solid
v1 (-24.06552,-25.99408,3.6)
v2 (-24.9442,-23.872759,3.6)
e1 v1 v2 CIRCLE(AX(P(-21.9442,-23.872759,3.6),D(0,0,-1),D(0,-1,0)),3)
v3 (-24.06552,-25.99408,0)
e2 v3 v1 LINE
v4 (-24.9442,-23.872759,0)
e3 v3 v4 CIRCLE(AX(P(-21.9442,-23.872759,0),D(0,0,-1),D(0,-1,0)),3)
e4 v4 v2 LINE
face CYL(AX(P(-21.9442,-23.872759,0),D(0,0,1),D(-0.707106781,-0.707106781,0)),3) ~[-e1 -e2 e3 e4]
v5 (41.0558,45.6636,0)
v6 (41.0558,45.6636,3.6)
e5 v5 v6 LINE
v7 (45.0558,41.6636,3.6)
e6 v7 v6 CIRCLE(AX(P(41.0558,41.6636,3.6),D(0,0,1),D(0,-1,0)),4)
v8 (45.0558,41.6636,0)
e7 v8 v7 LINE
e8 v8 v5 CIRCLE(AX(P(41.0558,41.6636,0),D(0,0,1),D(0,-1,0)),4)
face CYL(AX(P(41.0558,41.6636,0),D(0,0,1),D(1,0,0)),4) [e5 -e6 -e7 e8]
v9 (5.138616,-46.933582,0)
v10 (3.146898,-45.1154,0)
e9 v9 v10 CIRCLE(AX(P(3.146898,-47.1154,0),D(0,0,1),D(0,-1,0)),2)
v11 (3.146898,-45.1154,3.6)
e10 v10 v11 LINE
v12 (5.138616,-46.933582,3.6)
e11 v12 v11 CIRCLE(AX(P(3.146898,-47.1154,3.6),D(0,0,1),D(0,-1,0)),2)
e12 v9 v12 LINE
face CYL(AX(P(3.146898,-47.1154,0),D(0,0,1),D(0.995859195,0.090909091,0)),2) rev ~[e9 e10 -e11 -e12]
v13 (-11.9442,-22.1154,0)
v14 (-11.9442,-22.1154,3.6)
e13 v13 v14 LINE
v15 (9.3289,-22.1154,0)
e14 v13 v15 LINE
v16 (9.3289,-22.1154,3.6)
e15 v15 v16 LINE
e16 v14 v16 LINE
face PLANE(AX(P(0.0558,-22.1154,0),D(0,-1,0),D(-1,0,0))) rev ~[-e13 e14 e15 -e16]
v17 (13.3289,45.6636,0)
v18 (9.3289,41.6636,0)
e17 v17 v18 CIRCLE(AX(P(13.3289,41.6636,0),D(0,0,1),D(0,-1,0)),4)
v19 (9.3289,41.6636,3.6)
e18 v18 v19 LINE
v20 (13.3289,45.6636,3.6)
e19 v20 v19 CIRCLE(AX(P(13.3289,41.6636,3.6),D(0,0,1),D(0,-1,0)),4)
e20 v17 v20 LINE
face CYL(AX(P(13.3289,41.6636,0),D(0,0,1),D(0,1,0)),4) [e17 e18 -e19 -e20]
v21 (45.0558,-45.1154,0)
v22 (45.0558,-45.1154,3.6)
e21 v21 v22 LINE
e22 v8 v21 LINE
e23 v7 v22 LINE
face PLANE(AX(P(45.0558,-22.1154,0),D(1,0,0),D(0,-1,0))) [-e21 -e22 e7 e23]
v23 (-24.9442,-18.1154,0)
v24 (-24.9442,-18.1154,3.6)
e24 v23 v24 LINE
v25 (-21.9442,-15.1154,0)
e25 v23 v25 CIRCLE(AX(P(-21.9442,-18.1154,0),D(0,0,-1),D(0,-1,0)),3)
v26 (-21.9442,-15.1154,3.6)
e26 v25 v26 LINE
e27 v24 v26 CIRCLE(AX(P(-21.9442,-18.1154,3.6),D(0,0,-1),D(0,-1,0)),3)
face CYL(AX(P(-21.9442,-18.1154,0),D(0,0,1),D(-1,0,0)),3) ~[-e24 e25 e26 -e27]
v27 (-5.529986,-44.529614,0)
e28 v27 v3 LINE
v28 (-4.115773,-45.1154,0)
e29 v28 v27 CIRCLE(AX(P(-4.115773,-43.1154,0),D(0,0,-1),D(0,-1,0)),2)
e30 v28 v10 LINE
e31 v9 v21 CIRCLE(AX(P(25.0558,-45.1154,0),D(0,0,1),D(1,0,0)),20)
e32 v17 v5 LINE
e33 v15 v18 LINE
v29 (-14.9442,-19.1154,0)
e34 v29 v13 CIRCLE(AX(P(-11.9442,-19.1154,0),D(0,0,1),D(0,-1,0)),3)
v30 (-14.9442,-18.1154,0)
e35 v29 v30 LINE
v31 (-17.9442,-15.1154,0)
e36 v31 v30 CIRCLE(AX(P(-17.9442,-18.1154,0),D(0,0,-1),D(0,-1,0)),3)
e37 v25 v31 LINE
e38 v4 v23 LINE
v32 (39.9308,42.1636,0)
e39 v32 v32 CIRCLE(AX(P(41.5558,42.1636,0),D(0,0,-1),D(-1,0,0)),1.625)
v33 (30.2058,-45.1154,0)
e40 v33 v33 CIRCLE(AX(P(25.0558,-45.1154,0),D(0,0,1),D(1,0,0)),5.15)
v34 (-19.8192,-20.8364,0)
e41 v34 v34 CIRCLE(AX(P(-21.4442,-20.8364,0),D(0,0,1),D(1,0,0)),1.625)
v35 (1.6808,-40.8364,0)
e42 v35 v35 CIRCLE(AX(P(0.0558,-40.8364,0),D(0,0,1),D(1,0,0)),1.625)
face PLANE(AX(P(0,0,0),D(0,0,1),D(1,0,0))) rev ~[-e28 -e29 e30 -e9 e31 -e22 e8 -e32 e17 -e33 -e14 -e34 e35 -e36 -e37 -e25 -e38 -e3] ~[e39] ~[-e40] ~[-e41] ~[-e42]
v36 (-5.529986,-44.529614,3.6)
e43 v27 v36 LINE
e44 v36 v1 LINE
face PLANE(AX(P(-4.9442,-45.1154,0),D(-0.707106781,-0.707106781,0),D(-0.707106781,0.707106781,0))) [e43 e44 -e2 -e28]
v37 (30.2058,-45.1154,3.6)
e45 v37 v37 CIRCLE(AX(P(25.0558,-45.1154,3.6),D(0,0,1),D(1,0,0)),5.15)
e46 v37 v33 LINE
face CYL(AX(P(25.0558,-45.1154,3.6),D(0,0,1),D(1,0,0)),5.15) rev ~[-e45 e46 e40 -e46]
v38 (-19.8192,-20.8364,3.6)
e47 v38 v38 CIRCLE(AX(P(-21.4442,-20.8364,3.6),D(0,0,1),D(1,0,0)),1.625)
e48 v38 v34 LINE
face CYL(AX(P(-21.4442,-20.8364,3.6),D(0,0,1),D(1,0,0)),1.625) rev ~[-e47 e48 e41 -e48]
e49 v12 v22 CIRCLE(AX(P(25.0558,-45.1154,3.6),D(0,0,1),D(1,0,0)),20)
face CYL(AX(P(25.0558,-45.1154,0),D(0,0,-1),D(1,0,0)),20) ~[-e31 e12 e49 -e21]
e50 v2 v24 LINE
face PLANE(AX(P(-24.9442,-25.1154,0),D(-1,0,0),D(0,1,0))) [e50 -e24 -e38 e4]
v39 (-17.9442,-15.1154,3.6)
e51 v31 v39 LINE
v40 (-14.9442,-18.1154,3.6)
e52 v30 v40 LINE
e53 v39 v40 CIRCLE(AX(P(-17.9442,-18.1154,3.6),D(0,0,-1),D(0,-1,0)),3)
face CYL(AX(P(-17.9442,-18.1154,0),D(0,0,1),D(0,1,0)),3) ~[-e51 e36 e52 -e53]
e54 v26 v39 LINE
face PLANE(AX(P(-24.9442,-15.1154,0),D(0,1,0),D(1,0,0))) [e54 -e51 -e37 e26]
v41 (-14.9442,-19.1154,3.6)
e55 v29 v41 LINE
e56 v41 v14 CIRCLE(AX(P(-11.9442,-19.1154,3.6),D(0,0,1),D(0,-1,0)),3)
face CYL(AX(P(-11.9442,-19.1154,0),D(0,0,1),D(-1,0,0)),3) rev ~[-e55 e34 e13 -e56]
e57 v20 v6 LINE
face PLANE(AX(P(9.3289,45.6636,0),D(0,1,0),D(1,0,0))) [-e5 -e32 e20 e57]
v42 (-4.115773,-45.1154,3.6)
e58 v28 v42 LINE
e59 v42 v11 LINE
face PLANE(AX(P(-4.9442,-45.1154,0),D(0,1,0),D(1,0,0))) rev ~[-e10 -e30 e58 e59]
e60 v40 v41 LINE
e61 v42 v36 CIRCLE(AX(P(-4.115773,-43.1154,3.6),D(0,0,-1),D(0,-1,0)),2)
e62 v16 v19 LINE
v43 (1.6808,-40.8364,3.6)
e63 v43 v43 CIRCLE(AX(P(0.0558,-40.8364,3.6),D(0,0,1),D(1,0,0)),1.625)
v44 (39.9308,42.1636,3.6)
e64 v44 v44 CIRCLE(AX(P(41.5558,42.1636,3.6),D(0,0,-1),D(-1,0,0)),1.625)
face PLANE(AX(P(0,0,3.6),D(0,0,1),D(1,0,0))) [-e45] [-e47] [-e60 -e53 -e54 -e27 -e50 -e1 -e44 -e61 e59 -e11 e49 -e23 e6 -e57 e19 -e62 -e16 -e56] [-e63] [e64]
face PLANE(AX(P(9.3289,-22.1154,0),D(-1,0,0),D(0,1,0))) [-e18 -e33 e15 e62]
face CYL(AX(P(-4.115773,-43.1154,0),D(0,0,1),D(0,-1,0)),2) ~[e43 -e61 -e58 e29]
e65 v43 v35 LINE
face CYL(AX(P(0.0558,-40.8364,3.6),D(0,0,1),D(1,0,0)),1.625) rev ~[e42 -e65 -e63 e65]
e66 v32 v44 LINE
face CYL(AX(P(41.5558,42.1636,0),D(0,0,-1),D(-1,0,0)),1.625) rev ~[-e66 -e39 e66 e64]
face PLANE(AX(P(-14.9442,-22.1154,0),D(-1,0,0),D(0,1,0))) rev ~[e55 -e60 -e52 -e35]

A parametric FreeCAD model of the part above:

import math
import FreeCAD as App
import Part
import Sketcher
from FreeCAD import Vector


def edges_at(feature, points):
    """Names of the edges that pass closest to the given points."""
    edges = feature.Shape.Edges
    near = lambda p: min(range(len(edges)), key=lambda i: edges[i].distToShape(Part.Vertex(*p))[0])
    return sorted({f"Edge{near(p) + 1}" for p in points})


def add_polygon(sketch, points):
    """Adds a closed chain of lines whose ends are joined by coincident constraints."""
    first, n = sketch.GeometryCount, len(points)
    for a, b in zip(points, points[1:] + points[:1]):
        sketch.addGeometry(Part.LineSegment(App.Vector(*a, 0), App.Vector(*b, 0)), False)
    for i in range(n):
        sketch.addConstraint(Sketcher.Constraint("Coincident", first + i, 2, first + (i + 1) % n, 1))

doc = App.newDocument("Part")
body = doc.addObject("PartDesign::Body", "Body")

# Sketch on XY plane
sketch1 = body.newObject("Sketcher::SketchObject", "Sketch")
sketch1.AttachmentSupport = (doc.getObject("XY_Plane"), [""])
sketch1.MapMode = "FlatFace"
sketch1.addGeometry([
    Part.ArcOfCircle(Part.Circle(Vector(25.0558, -45.1154, 0), Vector(0, 0, 1), 20), math.radians(180), math.radians(360)),  # 0
    Part.LineSegment(Vector(45.0558, -45.1154, 0), Vector(45.0558, -22.1154, 0)),  # 1
    Part.LineSegment(Vector(45.0558, -22.1154, 0), Vector(-4.9442, -22.1154, 0)),  # 2
    Part.LineSegment(Vector(-4.9442, -22.1154, 0), Vector(-4.9442, -15.1154, 0)),  # 3
    Part.LineSegment(Vector(-4.9442, -15.1154, 0), Vector(-24.9442, -15.1154, 0)),  # 4
    Part.LineSegment(Vector(-24.9442, -15.1154, 0), Vector(-24.9442, -25.1154, 0)),  # 5
    Part.LineSegment(Vector(-24.9442, -25.1154, 0), Vector(-4.9442, -45.1154, 0)),  # 6
    Part.LineSegment(Vector(-4.9442, -45.1154, 0), Vector(5.0558, -45.1154, 0)),  # 7
], False)
sketch1.addConstraint([
    Sketcher.Constraint("Tangent", 0, 2, 1, 1),
    Sketcher.Constraint("Coincident", 1, 2, 2, 1),
    Sketcher.Constraint("Coincident", 2, 2, 3, 1),
    Sketcher.Constraint("Coincident", 3, 2, 4, 1),
    Sketcher.Constraint("Coincident", 4, 2, 5, 1),
    Sketcher.Constraint("Coincident", 5, 2, 6, 1),
    Sketcher.Constraint("Coincident", 6, 2, 7, 1),
    Sketcher.Constraint("Coincident", 7, 2, 0, 1),
    Sketcher.Constraint("Vertical", 1),
    Sketcher.Constraint("Horizontal", 2),
    Sketcher.Constraint("Vertical", 3),
    Sketcher.Constraint("Horizontal", 4),
    Sketcher.Constraint("Vertical", 5),
    Sketcher.Constraint("Horizontal", 7),
    Sketcher.Constraint("Horizontal", 0, 2, 6, 2),
    Sketcher.Constraint("Vertical", 3, 2, 6, 2),
    Sketcher.Constraint("Equal", 7, 5),
    Sketcher.Constraint("Radius", 0, 20.0),
    Sketcher.Constraint("DistanceX", 2, 2, 2, 1, 50.0),
    Sketcher.Constraint("DistanceX", 4, 2, 4, 1, 20.0),
    Sketcher.Constraint("DistanceY", 1, 1, 1, 2, 23.0),
    Sketcher.Constraint("DistanceY", 0, 3, 3, 2, 30.0),
    Sketcher.Constraint("DistanceX", -1, 1, 0, 3, 25.0558),
    Sketcher.Constraint("DistanceY", 0, 3, -1, 1, 45.1154),
])
pad1 = body.newObject("PartDesign::Pad", "Pad")
pad1.Profile = sketch1
pad1.Length = 3.6

# Sketch on XY plane
sketch2 = body.newObject("Sketcher::SketchObject", "Sketch001")
sketch2.AttachmentSupport = (doc.getObject("XY_Plane"), [""])
sketch2.MapMode = "FlatFace"
sketch2.AttachmentOffset = App.Placement(Vector(0, 0, 3.6), App.Rotation())
sketch2.addGeometry([
    Part.Circle(Vector(25.0558, -45.1154, 0), Vector(0, 0, 1), 5.15),
    Part.Circle(Vector(0.0558, -40.8364, 0), Vector(0, 0, 1), 1.625),
    Part.Circle(Vector(-21.4442, -20.8364, 0), Vector(0, 0, 1), 1.625),
], False)
sketch2.addConstraint([
    Sketcher.Constraint("Equal", 1, 2),
    Sketcher.Constraint("Diameter", 0, 10.3),
    Sketcher.Constraint("Diameter", 1, 3.25),
    Sketcher.Constraint("DistanceY", 1, 3, 2, 3, 20.0),
    Sketcher.Constraint("DistanceX", 2, 3, 1, 3, 21.5),
    Sketcher.Constraint("DistanceX", 1, 3, 0, 3, 25.0),
    Sketcher.Constraint("DistanceY", 0, 3, 1, 3, 4.279),
    Sketcher.Constraint("DistanceX", -1, 1, 0, 3, 25.0558),
    Sketcher.Constraint("DistanceY", 0, 3, -1, 1, 45.1154),
])
pocket1 = body.newObject("PartDesign::Pocket", "Pocket")
pocket1.Profile = sketch2
pocket1.Length = 20
doc.recompute()

fillet = body.newObject("PartDesign::Fillet", "Fillet")
fillet.Base = (pocket1, edges_at(pocket1, [
    (45.056, -22.115, 1.8),
    (-4.944, -45.115, 1.8),
    (-4.944, -22.115, 1.8),
    (5.056, -45.115, 1.8),
]))
fillet.Radius = 2
doc.recompute()

fillet2 = body.newObject("PartDesign::Fillet", "Fillet001")
fillet2.Base = (fillet, edges_at(fillet, [(-24.944, -25.115, 1.8), (-24.944, -15.115, 1.8), (-4.944, -15.115, 1.8)]))
fillet2.Radius = 3

# Sketch on XY plane
sketch3 = body.newObject("Sketcher::SketchObject", "Sketch002")
sketch3.AttachmentSupport = (doc.getObject("XY_Plane"), [""])
sketch3.MapMode = "FlatFace"
add_polygon(sketch3, [(-14.9442, -15.1154), (0.0558, -15.1154), (0.0558, -22.1154), (-14.9442, -22.1154)])  # lines 0-3
sketch3.addConstraint([
    Sketcher.Constraint("Horizontal", 0),
    Sketcher.Constraint("Vertical", 1),
    Sketcher.Constraint("Horizontal", 2),
    Sketcher.Constraint("Vertical", 3),
    Sketcher.Constraint("DistanceX", 0, 1, 0, 2, 15.0),
    Sketcher.Constraint("DistanceY", 1, 2, 1, 1, 7.0),
    Sketcher.Constraint("DistanceX", -1, 1, 0, 2, 0.0558),
    Sketcher.Constraint("DistanceY", 0, 2, -1, 1, 15.1154),
])
pocket2 = body.newObject("PartDesign::Pocket", "Pocket001")
pocket2.Profile = sketch3
pocket2.Length = 10
pocket2.Reversed = True
doc.recompute()

fillet3 = body.newObject("PartDesign::Fillet", "Fillet002")
fillet3.Base = (pocket2, edges_at(pocket2, [(-14.944, -15.115, 1.8), (-14.944, -22.115, 1.8)]))
fillet3.Radius = 3

# Sketch on XY plane
sketch4 = body.newObject("Sketcher::SketchObject", "Sketch003")
sketch4.AttachmentSupport = (doc.getObject("XY_Plane"), [""])
sketch4.MapMode = "FlatFace"
add_polygon(sketch4, [(45.0558, 45.6636), (45.0558, -28.8196), (9.3289, -28.8196), (9.3289, 45.6636)])  # lines 0-3
sketch4.addConstraint([
    Sketcher.Constraint("Vertical", 0),
    Sketcher.Constraint("Horizontal", 1),
    Sketcher.Constraint("Vertical", 2),
    Sketcher.Constraint("Horizontal", 3),
    Sketcher.Constraint("DistanceX", 1, 2, 1, 1, 35.727),
    Sketcher.Constraint("DistanceY", 0, 2, 0, 1, 74.4832),
    Sketcher.Constraint("DistanceX", -1, 1, 1, 2, 9.329),
    Sketcher.Constraint("DistanceY", 0, 2, -1, 1, 28.8196),
])
pad2 = body.newObject("PartDesign::Pad", "Pad001")
pad2.Profile = sketch4
pad2.Length = 3.6
doc.recompute()

fillet4 = body.newObject("PartDesign::Fillet", "Fillet003")
fillet4.Base = (pad2, edges_at(pad2, [(9.329, 45.664, 1.8), (45.056, 45.664, 1.8)]))
fillet4.Radius = 4

# Sketch on XY plane
sketch5 = body.newObject("Sketcher::SketchObject", "Sketch004")
sketch5.AttachmentSupport = (doc.getObject("XY_Plane"), [""])
sketch5.MapMode = "FlatFace"
sketch5.addGeometry(Part.Circle(Vector(41.5558, 42.1636, 0), Vector(0, 0, 1), 1.625), False)
sketch5.addConstraint([
    Sketcher.Constraint("Diameter", 0, 3.25),
    Sketcher.Constraint("DistanceX", -1, 1, 0, 3, 41.5558),
    Sketcher.Constraint("DistanceY", -1, 1, 0, 3, 42.1636),
])
pocket3 = body.newObject("PartDesign::Pocket", "Pocket002")
pocket3.Profile = sketch5
pocket3.Length = 5
pocket3.Reversed = True

doc.recompute()
